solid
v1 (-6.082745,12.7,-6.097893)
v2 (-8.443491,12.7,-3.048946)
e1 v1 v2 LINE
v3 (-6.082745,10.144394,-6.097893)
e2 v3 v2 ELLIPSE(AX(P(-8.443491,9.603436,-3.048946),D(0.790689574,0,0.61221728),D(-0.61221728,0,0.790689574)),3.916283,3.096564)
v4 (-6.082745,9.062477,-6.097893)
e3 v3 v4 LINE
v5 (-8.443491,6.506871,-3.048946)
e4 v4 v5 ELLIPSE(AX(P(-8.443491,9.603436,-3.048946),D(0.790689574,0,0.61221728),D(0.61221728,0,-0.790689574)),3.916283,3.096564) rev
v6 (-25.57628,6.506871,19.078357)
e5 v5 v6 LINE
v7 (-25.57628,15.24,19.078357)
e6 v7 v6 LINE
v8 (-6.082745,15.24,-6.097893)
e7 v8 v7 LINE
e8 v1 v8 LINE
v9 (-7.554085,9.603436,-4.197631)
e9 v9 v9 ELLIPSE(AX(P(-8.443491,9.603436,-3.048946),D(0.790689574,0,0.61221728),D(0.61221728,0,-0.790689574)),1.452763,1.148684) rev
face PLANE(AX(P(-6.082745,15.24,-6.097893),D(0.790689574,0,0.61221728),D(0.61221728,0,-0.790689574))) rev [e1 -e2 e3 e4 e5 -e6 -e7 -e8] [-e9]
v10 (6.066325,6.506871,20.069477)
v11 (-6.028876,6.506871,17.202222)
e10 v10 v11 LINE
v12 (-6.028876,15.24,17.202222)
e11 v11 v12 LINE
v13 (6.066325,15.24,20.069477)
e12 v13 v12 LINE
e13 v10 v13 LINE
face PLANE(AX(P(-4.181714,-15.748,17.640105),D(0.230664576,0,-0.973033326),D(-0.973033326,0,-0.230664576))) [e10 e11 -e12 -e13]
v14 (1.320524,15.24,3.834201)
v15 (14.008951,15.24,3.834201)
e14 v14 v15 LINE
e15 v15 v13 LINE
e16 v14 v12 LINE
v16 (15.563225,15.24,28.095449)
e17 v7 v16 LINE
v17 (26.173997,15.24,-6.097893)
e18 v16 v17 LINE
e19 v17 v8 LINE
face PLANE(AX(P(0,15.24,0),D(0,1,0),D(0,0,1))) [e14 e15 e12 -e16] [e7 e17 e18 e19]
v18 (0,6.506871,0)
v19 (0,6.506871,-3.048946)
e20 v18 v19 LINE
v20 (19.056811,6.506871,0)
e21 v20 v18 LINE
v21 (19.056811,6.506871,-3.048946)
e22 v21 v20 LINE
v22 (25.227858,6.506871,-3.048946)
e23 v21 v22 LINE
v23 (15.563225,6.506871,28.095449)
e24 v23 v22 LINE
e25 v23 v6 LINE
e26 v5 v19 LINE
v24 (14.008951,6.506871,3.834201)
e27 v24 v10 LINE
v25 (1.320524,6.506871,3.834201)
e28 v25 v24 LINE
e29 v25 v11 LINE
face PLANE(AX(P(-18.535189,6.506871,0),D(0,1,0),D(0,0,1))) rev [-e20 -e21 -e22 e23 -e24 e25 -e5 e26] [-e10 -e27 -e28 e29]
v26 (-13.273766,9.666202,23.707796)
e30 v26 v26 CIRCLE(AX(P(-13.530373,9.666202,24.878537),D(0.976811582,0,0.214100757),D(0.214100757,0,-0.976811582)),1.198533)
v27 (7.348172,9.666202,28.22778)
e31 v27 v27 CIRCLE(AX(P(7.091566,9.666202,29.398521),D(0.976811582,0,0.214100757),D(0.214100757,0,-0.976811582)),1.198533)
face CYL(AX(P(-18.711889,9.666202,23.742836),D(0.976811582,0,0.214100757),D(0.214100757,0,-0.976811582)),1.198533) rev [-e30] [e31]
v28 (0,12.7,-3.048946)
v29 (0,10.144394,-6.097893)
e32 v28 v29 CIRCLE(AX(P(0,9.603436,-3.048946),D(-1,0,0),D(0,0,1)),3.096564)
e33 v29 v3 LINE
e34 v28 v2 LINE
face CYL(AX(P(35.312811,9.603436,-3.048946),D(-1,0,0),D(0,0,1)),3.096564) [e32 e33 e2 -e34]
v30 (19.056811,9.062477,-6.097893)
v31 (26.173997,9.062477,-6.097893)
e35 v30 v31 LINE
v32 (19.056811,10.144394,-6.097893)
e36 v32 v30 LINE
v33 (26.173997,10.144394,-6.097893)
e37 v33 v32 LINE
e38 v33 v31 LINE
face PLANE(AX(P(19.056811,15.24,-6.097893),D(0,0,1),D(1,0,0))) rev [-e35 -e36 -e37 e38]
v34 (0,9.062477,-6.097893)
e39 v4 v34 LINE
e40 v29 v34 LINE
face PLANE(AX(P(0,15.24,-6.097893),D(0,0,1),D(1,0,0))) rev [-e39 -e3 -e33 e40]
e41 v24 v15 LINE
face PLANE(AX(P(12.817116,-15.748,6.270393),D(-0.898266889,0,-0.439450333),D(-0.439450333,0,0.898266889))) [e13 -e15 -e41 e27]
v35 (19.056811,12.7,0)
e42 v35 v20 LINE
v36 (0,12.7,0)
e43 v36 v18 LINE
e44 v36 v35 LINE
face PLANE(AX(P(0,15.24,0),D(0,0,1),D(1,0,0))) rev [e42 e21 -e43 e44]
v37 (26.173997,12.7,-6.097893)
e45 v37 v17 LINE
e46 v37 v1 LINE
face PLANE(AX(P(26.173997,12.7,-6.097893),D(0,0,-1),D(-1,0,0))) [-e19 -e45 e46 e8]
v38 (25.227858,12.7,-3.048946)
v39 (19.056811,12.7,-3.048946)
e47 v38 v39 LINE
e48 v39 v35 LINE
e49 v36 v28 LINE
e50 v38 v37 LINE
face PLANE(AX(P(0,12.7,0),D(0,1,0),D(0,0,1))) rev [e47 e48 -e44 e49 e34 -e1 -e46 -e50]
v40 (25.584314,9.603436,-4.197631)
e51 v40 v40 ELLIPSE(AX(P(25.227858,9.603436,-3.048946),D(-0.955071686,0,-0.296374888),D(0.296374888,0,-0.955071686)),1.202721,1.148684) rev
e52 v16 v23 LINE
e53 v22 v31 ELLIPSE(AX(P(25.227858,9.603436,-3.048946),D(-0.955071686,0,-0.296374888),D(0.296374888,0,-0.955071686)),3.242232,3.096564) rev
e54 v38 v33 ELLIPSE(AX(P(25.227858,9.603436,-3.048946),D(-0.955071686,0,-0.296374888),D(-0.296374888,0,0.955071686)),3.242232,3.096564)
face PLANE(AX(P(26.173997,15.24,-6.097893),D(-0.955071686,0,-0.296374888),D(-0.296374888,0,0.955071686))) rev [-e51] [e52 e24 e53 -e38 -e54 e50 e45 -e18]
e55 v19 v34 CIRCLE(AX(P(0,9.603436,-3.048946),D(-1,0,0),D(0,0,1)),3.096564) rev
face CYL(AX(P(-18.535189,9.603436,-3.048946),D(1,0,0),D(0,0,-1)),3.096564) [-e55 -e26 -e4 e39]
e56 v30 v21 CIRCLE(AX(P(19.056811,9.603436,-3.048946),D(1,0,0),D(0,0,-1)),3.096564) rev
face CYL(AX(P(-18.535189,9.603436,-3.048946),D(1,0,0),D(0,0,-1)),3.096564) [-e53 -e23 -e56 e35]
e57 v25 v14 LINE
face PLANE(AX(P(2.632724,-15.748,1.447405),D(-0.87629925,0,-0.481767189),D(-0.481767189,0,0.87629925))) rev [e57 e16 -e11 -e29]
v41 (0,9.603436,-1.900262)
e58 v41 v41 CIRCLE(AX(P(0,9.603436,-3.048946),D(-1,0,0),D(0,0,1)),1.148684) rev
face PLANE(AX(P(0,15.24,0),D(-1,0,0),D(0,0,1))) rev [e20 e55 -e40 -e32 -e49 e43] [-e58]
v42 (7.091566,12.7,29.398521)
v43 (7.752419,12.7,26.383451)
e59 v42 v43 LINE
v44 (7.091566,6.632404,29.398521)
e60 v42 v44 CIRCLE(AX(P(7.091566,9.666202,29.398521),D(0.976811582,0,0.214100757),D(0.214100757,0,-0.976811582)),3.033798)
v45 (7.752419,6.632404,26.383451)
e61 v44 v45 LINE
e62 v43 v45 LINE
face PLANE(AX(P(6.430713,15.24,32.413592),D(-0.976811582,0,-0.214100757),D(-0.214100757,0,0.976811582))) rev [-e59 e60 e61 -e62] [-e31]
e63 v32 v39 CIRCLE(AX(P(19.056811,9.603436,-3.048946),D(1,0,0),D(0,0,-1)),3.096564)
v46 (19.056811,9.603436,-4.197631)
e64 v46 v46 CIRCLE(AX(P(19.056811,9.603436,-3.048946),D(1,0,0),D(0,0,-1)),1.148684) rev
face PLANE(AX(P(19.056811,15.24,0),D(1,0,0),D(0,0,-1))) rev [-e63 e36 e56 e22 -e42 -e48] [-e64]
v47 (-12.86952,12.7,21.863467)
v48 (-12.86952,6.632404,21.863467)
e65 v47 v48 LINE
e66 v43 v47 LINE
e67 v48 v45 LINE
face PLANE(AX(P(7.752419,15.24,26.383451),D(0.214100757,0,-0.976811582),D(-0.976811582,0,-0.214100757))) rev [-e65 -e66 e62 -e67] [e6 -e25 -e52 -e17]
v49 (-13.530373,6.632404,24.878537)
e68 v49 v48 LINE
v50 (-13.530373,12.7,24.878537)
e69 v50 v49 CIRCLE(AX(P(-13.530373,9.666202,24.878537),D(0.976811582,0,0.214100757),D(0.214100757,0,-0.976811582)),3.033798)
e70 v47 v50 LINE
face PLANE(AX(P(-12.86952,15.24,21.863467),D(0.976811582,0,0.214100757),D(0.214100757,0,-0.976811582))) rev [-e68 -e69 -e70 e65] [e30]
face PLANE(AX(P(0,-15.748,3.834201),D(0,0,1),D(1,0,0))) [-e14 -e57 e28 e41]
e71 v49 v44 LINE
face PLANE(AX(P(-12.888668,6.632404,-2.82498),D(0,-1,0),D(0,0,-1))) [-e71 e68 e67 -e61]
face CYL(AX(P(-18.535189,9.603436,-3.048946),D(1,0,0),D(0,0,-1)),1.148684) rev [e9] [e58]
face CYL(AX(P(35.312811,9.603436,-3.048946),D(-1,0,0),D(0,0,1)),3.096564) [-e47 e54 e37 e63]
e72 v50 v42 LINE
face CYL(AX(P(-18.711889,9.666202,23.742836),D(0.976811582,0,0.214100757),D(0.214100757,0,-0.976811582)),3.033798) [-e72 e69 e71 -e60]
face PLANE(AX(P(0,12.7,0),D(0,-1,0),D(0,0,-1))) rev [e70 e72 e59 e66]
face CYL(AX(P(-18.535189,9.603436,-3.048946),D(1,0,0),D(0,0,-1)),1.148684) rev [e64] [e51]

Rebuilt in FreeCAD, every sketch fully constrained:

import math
import FreeCAD as App
import Part
import Sketcher

V = App.Vector
Q = App.Units.Quantity


def add_polygon(sketch, points):
    """Adds a closed chain of lines whose ends are joined by coincident constraints."""
    first, n = sketch.GeometryCount, len(points)
    for a, b in zip(points, points[1:] + points[:1]):
        sketch.addGeometry(Part.LineSegment(App.Vector(*a, 0), App.Vector(*b, 0)), False)
    for i in range(n):
        sketch.addConstraint(Sketcher.Constraint("Coincident", first + i, 2, first + (i + 1) % n, 1))

doc = App.newDocument("Part")
body = doc.addObject("PartDesign::Body", "Body")

sketch1 = body.newObject("Sketcher::SketchObject", "Sketch")
sketch1.AttachmentSupport = (doc.getObject("XZ_Plane"), [""])
sketch1.MapMode = "FlatFace"
add_polygon(sketch1, [(19, 0), (0, 0), (0, -6), (-6, -6), (-26, 19), (-13, 22), (-14, 28), (6, 32), (8, 26), (16, 28), (26, -6), (19, -6)])
sketch1.addConstraint(Sketcher.Constraint("Horizontal", 0))
sketch1.addConstraint(Sketcher.Constraint("Vertical", 1))
sketch1.addConstraint(Sketcher.Constraint("Horizontal", 2))
sketch1.addConstraint(Sketcher.Constraint("Horizontal", 10))
sketch1.addConstraint(Sketcher.Constraint("Vertical", 11))
sketch1.addConstraint(Sketcher.Constraint("Coincident", 0, 2, -1, 1))
sketch1.addConstraint(Sketcher.Constraint("Perpendicular", 4, 5))
sketch1.addConstraint(Sketcher.Constraint("Perpendicular", 5, 6))
sketch1.addConstraint(Sketcher.Constraint("Perpendicular", 6, 7))
sketch1.addConstraint(Sketcher.Constraint("Perpendicular", 7, 8))
sketch1.addConstraint(Sketcher.Constraint("Horizontal", 2, 2, 9, 2))
sketch1.addConstraint(Sketcher.Constraint("Equal", 5, 7))
sketch1.addConstraint(Sketcher.Constraint("Angle", 3, Q("127.75 deg")))
sketch1.addConstraint(Sketcher.Constraint("Angle", 9, Q("-72.76 deg")))
sketch1.addConstraint(Sketcher.Constraint("DistanceY", 1, 2, 6, 2, Q("1.5162002 in")))
sketch1.addConstraint(Sketcher.Constraint("DistanceX", 0, 2, 0, 1, 19.056811))
sketch1.addConstraint(Sketcher.Constraint("DistanceY", 2, 2, 5, 2, 33.991501))
sketch1.addConstraint(Sketcher.Constraint("DistanceY", 7, 2, 8, 2, 1.711998))
sketch1.addConstraint(Sketcher.Constraint("Distance", 5, 6.17329))
sketch1.addConstraint(Sketcher.Constraint("Distance", 6, 21.11148))
sketch1.addConstraint(Sketcher.Constraint("DistanceX", 2, 2, 2, 1, 6.082745))
sketch1.addConstraint(Sketcher.Constraint("DistanceX", 10, 2, 10, 1, 7.117186))
sketch1.addConstraint(Sketcher.Constraint("DistanceY", 1, 2, 1, 1, 6.097893))
pad1 = body.newObject("PartDesign::Pad", "Pad")
pad1.Profile = sketch1
pad1.Length = Q("0.6 in")
pad1.Reversed = True

sketch2 = body.newObject("Sketcher::SketchObject", "Sketch001")
sketch2.AttachmentSupport = (doc.getObject("XZ_Plane"), [""])
sketch2.MapMode = "FlatFace"
sketch2.AttachmentOffset = App.Placement(V(0, 0, -0.6 * 25.4), App.Rotation())
add_polygon(sketch2, [(8, 26), (-13, 22), (-14, 28), (6, 32)])
sketch2.addConstraint(Sketcher.Constraint("Perpendicular", 0, 1))
sketch2.addConstraint(Sketcher.Constraint("Perpendicular", 1, 2))
sketch2.addConstraint(Sketcher.Constraint("Perpendicular", 2, 3))
sketch2.addConstraint(Sketcher.Constraint("Distance", 0, 21.11148))
sketch2.addConstraint(Sketcher.Constraint("Distance", 1, 6.17329))
sketch2.addConstraint(Sketcher.Constraint("DistanceX", 0, 2, -1, 1, 12.86952))
sketch2.addConstraint(Sketcher.Constraint("DistanceY", -1, 1, 1, 2, 27.893608))
sketch2.addConstraint(Sketcher.Constraint("DistanceX", -1, 1, 3, 2, 7.752419))
pocket1 = body.newObject("PartDesign::Pocket", "Pocket")
pocket1.Profile = sketch2
pocket1.Length = Q("0.1 in")
pocket1.Reversed = True

sketch3 = body.newObject("Sketcher::SketchObject", "Sketch002")
sketch3.Placement = App.Placement(V(12.914786, 0, 2.830705), App.Rotation(V(0.214100757, 0, -0.976811582), V(0, 1.000000001, 0), V(0.976811582, 0, 0.214100757), "ZXY"))
sketch3.addGeometry(Part.LineSegment(V(-30.3, 12.7, 0), V(-30.3, 0, 0)), False)
sketch3.addGeometry(Part.LineSegment(V(-30.3, 0, 0), V(-24.1, 0, 0)), False)
sketch3.addGeometry(Part.LineSegment(V(-24.1, 0, 0), V(-24.1, 6.6, 0)), False)
sketch3.addGeometry(Part.LineSegment(V(-24.1, 6.6, 0), V(-27.2, 6.6, 0)), False)
sketch3.addGeometry(Part.ArcOfCircle(Part.Circle(V(-27.2, 9.7, 0), V(0, 0, 1), 3), math.radians(135), math.radians(270)), False)
sketch3.addGeometry(Part.ArcOfCircle(Part.Circle(V(-27.2, 9.7, 0), V(0, 0, 1), 3), math.radians(90), math.radians(135)), False)
sketch3.addGeometry(Part.LineSegment(V(-27.2, 12.7, 0), V(-30.3, 12.7, 0)), False)
sketch3.addGeometry(Part.ArcOfCircle(Part.Circle(V(-27.2, 9.7, 0), V(0, 0, 1), 1.2), math.radians(0), math.radians(135)), False)
sketch3.addGeometry(Part.ArcOfCircle(Part.Circle(V(-27.2, 9.7, 0), V(0, 0, 1), 1.2), math.radians(135), math.radians(315)), False)
sketch3.addGeometry(Part.ArcOfCircle(Part.Circle(V(-27.2, 9.7, 0), V(0, 0, 1), 1.2), math.radians(-45), math.radians(0)), False)
sketch3.addConstraint(Sketcher.Constraint("Coincident", 0, 2, 1, 1))
sketch3.addConstraint(Sketcher.Constraint("Coincident", 1, 2, 2, 1))
sketch3.addConstraint(Sketcher.Constraint("Coincident", 2, 2, 3, 1))
sketch3.addConstraint(Sketcher.Constraint("Tangent", 3, 2, 4, 2))
sketch3.addConstraint(Sketcher.Constraint("Tangent", 4, 1, 5, 2))
sketch3.addConstraint(Sketcher.Constraint("Tangent", 5, 1, 6, 1))
sketch3.addConstraint(Sketcher.Constraint("Coincident", 6, 2, 0, 1))
sketch3.addConstraint(Sketcher.Constraint("Tangent", 7, 2, 8, 1))
sketch3.addConstraint(Sketcher.Constraint("Tangent", 8, 2, 9, 1))
sketch3.addConstraint(Sketcher.Constraint("Tangent", 9, 2, 7, 1))
sketch3.addConstraint(Sketcher.Constraint("Vertical", 0))
sketch3.addConstraint(Sketcher.Constraint("Horizontal", 1))
sketch3.addConstraint(Sketcher.Constraint("Vertical", 2))
sketch3.addConstraint(Sketcher.Constraint("Horizontal", 3))
sketch3.addConstraint(Sketcher.Constraint("Horizontal", 6))
sketch3.addConstraint(Sketcher.Constraint("Coincident", 7, 3, 4, 3))
sketch3.addConstraint(Sketcher.Constraint("Equal", 4, 5))
sketch3.addConstraint(Sketcher.Constraint("PointOnObject", 0, 2, -1))
sketch3.addConstraint(Sketcher.Constraint("Horizontal", 8, 3, 9, 2))
sketch3.addConstraint(Sketcher.Constraint("Equal", 3, 6))
sketch3.addConstraint(Sketcher.Constraint("DistanceY", 0, 2, 0, 1, Q("0.5 in")))
sketch3.addConstraint(Sketcher.Constraint("Radius", 4, 3.033798))
sketch3.addConstraint(Sketcher.Constraint("Radius", 7, 1.198533))
sketch3.addConstraint(Sketcher.Constraint("DistanceX", 1, 1, 1, 2, 6.17329))
sketch3.addConstraint(Sketcher.Constraint("DistanceX", 0, 2, -1, 1, 30.285152))
sketch3.addConstraint(Sketcher.Constraint("DistanceY", -1, 1, 4, 1, 11.792819))
sketch3.addConstraint(Sketcher.Constraint("DistanceX", 8, 2, -1, 1, 26.34373))
sketch3.addConstraint(Sketcher.Constraint("DistanceY", 5, 3, 7, 2, 0.840142))
pocket2 = body.newObject("PartDesign::Pocket", "Pocket001")
pocket2.Profile = sketch3
pocket2.Length = Q("1.04 in")

sketch4 = body.newObject("Sketcher::SketchObject", "Sketch003")
sketch4.AttachmentSupport = (doc.getObject("XZ_Plane"), [""])
sketch4.MapMode = "FlatFace"
sketch4.AttachmentOffset = App.Placement(V(0, 0, -0.6 * 25.4), App.Rotation())
add_polygon(sketch4, [(0, 0), (0, -6), (-6, -6), (-11, 0)])
add_polygon(sketch4, [(19, 0), (24, 0), (26, -6), (19, -6)])
sketch4.addConstraint(Sketcher.Constraint("Vertical", 0))
sketch4.addConstraint(Sketcher.Constraint("Horizontal", 1))
sketch4.addConstraint(Sketcher.Constraint("Horizontal", 3))
sketch4.addConstraint(Sketcher.Constraint("Horizontal", 4))
sketch4.addConstraint(Sketcher.Constraint("Horizontal", 6))
sketch4.addConstraint(Sketcher.Constraint("Vertical", 7))
sketch4.addConstraint(Sketcher.Constraint("Coincident", 3, 2, -1, 1))
sketch4.addConstraint(Sketcher.Constraint("PointOnObject", 4, 2, -1))
sketch4.addConstraint(Sketcher.Constraint("Horizontal", 1, 2, 5, 2))
sketch4.addConstraint(Sketcher.Constraint("Angle", 2, Q("127.75 deg")))
sketch4.addConstraint(Sketcher.Constraint("Angle", 5, Q("-72.76 deg")))
sketch4.addConstraint(Sketcher.Constraint("Distance", 2, 7.71212))
sketch4.addConstraint(Sketcher.Constraint("DistanceX", 1, 2, 1, 1, 6.082745))
sketch4.addConstraint(Sketcher.Constraint("DistanceX", 4, 1, 4, 2, 5.224907))
sketch4.addConstraint(Sketcher.Constraint("DistanceX", -1, 1, 4, 2, 24.281718))
pocket3 = body.newObject("PartDesign::Pocket", "Pocket002")
pocket3.Profile = sketch4
pocket3.Length = Q("0.1 in")
pocket3.Reversed = True

sketch5 = body.newObject("Sketcher::SketchObject", "Sketch004")
sketch5.AttachmentSupport = (doc.getObject("YZ_Plane"), [""])
sketch5.MapMode = "FlatFace"
sketch5.AttachmentOffset = App.Placement(V(0, 0, 19.056811), App.Rotation())
sketch5.addGeometry(Part.ArcOfCircle(Part.Circle(V(9.6, -3, 0), V(0, 0, 1), 1.1), math.radians(135), math.radians(450)), False)
sketch5.addGeometry(Part.ArcOfCircle(Part.Circle(V(9.6, -3, 0), V(0, 0, 1), 1.1), math.radians(90), math.radians(135)), False)
sketch5.addGeometry(Part.ArcOfCircle(Part.Circle(V(9.6, -3, 0), V(0, 0, 1), 3.1), math.radians(-180), math.radians(-100)), False)
sketch5.addGeometry(Part.LineSegment(V(9.1, -6.1, 0), V(0, -6.1, 0)), False)
sketch5.addGeometry(Part.LineSegment(V(0, -6.1, 0), V(0, 0, 0)), False)
sketch5.addGeometry(Part.LineSegment(V(0, 0, 0), V(6.5, 0, 0)), False)
sketch5.addGeometry(Part.LineSegment(V(6.5, 0, 0), V(6.5, -3, 0)), False)
sketch5.addGeometry(Part.LineSegment(V(12.7, -6.1, 0), V(10.1, -6.1, 0)), False)
sketch5.addGeometry(Part.ArcOfCircle(Part.Circle(V(9.6, -3, 0), V(0, 0, 1), 3.1), math.radians(-80), math.radians(-45)), False)
sketch5.addGeometry(Part.ArcOfCircle(Part.Circle(V(9.6, -3, 0), V(0, 0, 1), 3.1), math.radians(-45), math.radians(0)), False)
sketch5.addGeometry(Part.LineSegment(V(12.7, -3, 0), V(12.7, -6.1, 0)), False)
sketch5.addConstraint(Sketcher.Constraint("Tangent", 0, 1, 1, 2))
sketch5.addConstraint(Sketcher.Constraint("Coincident", 1, 1, 0, 2))
sketch5.addConstraint(Sketcher.Constraint("Coincident", 2, 2, 3, 1))
sketch5.addConstraint(Sketcher.Constraint("Coincident", 3, 2, 4, 1))
sketch5.addConstraint(Sketcher.Constraint("Coincident", 4, 2, 5, 1))
sketch5.addConstraint(Sketcher.Constraint("Coincident", 5, 2, 6, 1))
sketch5.addConstraint(Sketcher.Constraint("Tangent", 6, 2, 2, 1))
sketch5.addConstraint(Sketcher.Constraint("Coincident", 7, 2, 8, 1))
sketch5.addConstraint(Sketcher.Constraint("Tangent", 8, 2, 9, 1))
sketch5.addConstraint(Sketcher.Constraint("Tangent", 9, 2, 10, 1))
sketch5.addConstraint(Sketcher.Constraint("Coincident", 10, 2, 7, 1))
sketch5.addConstraint(Sketcher.Constraint("Horizontal", 3))
sketch5.addConstraint(Sketcher.Constraint("Vertical", 4))
sketch5.addConstraint(Sketcher.Constraint("Horizontal", 5))
sketch5.addConstraint(Sketcher.Constraint("Vertical", 6))
sketch5.addConstraint(Sketcher.Constraint("Horizontal", 7))
sketch5.addConstraint(Sketcher.Constraint("Vertical", 10))
sketch5.addConstraint(Sketcher.Constraint("Coincident", 4, 2, -1, 1))
sketch5.addConstraint(Sketcher.Constraint("Coincident", 2, 3, 0, 3))
sketch5.addConstraint(Sketcher.Constraint("Coincident", 8, 3, 0, 3))
sketch5.addConstraint(Sketcher.Constraint("Equal", 2, 8))
sketch5.addConstraint(Sketcher.Constraint("Equal", 8, 9))
sketch5.addConstraint(Sketcher.Constraint("Horizontal", 3, 2, 7, 2))
sketch5.addConstraint(Sketcher.Constraint("Vertical", 9, 3, 1, 1))
sketch5.addConstraint(Sketcher.Constraint("Equal", 6, 10))
sketch5.addConstraint(Sketcher.Constraint("DistanceX", -1, 1, 9, 2, Q("0.5 in")))
sketch5.addConstraint(Sketcher.Constraint("Radius", 0, 1.148684))
sketch5.addConstraint(Sketcher.Constraint("Radius", 2, 3.096564))
sketch5.addConstraint(Sketcher.Constraint("DistanceX", 8, 3, 8, 2, 2.206501))
sketch5.addConstraint(Sketcher.Constraint("DistanceX", 3, 2, 3, 1, 9.062477))
sketch5.addConstraint(Sketcher.Constraint("DistanceY", 0, 1, -1, 1, 2.243022))
pocket4 = body.newObject("PartDesign::Pocket", "Pocket003")
pocket4.Profile = sketch5
pocket4.Type = "ThroughAll"
pocket4.Midplane = True

sketch6 = body.newObject("Sketcher::SketchObject", "Sketch005")
sketch6.AttachmentSupport = (doc.getObject("YZ_Plane"), [""])
sketch6.MapMode = "FlatFace"
add_polygon(sketch6, [(7, 28), (0, 28), (0, 0), (7, 0)])
sketch6.addConstraint(Sketcher.Constraint("Horizontal", 0))
sketch6.addConstraint(Sketcher.Constraint("Vertical", 1))
sketch6.addConstraint(Sketcher.Constraint("Horizontal", 2))
sketch6.addConstraint(Sketcher.Constraint("Vertical", 3))
sketch6.addConstraint(Sketcher.Constraint("Coincident", 1, 2, -1, 1))
sketch6.addConstraint(Sketcher.Constraint("DistanceX", 0, 2, 0, 1, 6.506871))
sketch6.addConstraint(Sketcher.Constraint("DistanceY", 1, 2, 1, 1, 28.095449))
pocket5 = body.newObject("PartDesign::Pocket", "Pocket004")
pocket5.Profile = sketch6
pocket5.Type = "ThroughAll"
pocket5.Midplane = True

sketch7 = body.newObject("Sketcher::SketchObject", "Sketch006")
sketch7.AttachmentSupport = (doc.getObject("XZ_Plane"), [""])
sketch7.MapMode = "FlatFace"
sketch7.AttachmentOffset = App.Placement(V(0, 0, -0.6 * 25.4), App.Rotation())
add_polygon(sketch7, [(14, 4), (1, 4), (-6, 17), (0, 19), (6, 20)])
sketch7.addConstraint(Sketcher.Constraint("Horizontal", 0))
sketch7.addConstraint(Sketcher.Constraint("Parallel", 2, 3))
sketch7.addConstraint(Sketcher.Constraint("DistanceY", 0, 2, 1, 2, Q("0.5263001 in")))
sketch7.addConstraint(Sketcher.Constraint("Distance", 4, 18.074))
sketch7.addConstraint(Sketcher.Constraint("DistanceY", -1, 1, 0, 2, 3.834201))
sketch7.addConstraint(Sketcher.Constraint("DistanceX", 1, 2, 0, 2, 7.3494))
sketch7.addConstraint(Sketcher.Constraint("DistanceX", 1, 2, 3, 2, 12.095202))
sketch7.addConstraint(Sketcher.Constraint("Distance", 2, 6.37345))
sketch7.addConstraint(Sketcher.Constraint("DistanceX", 0, 2, 0, 1, 12.688427))
sketch7.addConstraint(Sketcher.Constraint("DistanceX", -1, 1, 4, 2, 14.008951))
pocket6 = body.newObject("PartDesign::Pocket", "Pocket005")
pocket6.Profile = sketch7
pocket6.Length = Q("1.22 in")
pocket6.Reversed = True

sketch8 = body.newObject("Sketcher::SketchObject", "Sketch007")
sketch8.AttachmentSupport = (doc.getObject("XZ_Plane"), [""])
sketch8.MapMode = "FlatFace"
sketch8.AttachmentOffset = App.Placement(V(0, 0, -0.6 * 25.4), App.Rotation())
add_polygon(sketch8, [(-11, 0), (24, 0), (26, -6), (-6, -6)])
sketch8.addConstraint(Sketcher.Constraint("Horizontal", 0))
sketch8.addConstraint(Sketcher.Constraint("Horizontal", 2))
sketch8.addConstraint(Sketcher.Constraint("PointOnObject", 0, 2, -1))
sketch8.addConstraint(Sketcher.Constraint("Angle", 1, Q("-72.76 deg")))
sketch8.addConstraint(Sketcher.Constraint("Angle", 3, Q("127.75 deg")))
sketch8.addConstraint(Sketcher.Constraint("DistanceX", 2, 2, 2, 1, 32.256742))
sketch8.addConstraint(Sketcher.Constraint("Distance", 1, 6.384749))
sketch8.addConstraint(Sketcher.Constraint("DistanceX", -1, 1, 0, 2, 24.281718))
pad2 = body.newObject("PartDesign::Pad", "Pad001")
pad2.Profile = sketch8
pad2.Length = Q("0.1 in")

doc.recompute()
